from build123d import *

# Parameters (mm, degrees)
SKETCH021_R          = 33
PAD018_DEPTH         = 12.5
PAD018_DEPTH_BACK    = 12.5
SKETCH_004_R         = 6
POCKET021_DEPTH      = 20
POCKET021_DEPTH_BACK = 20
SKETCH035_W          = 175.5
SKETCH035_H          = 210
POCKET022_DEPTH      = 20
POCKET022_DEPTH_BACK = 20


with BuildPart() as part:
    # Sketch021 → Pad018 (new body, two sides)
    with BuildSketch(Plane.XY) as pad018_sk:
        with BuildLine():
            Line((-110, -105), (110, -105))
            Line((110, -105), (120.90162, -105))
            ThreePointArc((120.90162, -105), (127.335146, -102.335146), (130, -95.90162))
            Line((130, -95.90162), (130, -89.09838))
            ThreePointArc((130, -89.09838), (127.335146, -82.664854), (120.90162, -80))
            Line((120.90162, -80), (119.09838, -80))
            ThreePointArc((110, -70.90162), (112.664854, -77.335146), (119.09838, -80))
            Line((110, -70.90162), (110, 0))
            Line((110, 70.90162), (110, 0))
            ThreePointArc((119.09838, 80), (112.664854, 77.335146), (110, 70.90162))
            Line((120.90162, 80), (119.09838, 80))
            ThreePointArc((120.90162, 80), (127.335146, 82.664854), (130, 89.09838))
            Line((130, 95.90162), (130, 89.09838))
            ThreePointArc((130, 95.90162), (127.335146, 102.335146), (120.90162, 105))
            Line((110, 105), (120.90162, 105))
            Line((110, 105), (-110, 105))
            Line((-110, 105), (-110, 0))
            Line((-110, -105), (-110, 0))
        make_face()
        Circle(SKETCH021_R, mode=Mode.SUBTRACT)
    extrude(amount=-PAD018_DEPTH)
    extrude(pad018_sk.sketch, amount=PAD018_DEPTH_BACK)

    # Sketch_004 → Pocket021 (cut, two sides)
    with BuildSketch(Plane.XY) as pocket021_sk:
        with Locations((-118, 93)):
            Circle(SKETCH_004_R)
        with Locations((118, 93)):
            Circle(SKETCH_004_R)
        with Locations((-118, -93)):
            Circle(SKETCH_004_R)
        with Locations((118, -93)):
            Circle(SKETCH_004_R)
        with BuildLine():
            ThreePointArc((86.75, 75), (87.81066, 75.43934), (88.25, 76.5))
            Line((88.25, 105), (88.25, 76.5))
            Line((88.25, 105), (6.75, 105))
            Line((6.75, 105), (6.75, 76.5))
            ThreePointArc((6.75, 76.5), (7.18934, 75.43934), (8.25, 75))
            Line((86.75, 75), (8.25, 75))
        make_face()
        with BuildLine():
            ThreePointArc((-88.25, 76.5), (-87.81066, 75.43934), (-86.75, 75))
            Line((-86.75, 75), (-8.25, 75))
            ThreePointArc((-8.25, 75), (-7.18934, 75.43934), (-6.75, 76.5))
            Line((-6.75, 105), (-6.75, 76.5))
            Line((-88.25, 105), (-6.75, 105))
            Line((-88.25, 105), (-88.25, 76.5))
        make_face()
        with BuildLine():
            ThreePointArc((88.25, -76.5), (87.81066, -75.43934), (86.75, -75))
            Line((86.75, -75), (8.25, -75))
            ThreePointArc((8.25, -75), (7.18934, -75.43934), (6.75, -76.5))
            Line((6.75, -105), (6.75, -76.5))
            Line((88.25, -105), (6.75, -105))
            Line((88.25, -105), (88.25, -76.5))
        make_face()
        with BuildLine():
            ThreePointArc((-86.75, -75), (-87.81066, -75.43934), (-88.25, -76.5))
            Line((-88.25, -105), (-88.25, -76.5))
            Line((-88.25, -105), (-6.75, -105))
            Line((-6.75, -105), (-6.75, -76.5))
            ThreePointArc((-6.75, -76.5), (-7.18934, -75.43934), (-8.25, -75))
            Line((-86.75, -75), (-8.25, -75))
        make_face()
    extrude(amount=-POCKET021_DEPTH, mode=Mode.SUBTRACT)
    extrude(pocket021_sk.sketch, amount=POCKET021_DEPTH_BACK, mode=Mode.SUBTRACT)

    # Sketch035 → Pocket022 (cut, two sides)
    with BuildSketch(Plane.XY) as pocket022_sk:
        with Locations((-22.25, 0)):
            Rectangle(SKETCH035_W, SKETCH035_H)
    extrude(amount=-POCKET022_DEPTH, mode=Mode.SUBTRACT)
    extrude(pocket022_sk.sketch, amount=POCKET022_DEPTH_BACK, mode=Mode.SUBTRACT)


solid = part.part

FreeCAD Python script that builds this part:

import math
import FreeCAD as App
import Part
import Sketcher

doc = App.newDocument("Part")
params = doc.addObject("Spreadsheet::Sheet", "Params")
for row, (alias, value) in enumerate([
    ("sketch1_diameter", "66 mm"),
    ("sketch1_height", "210 mm"),
    ("pad1_length", "12.5 mm"),
    ("pad1_length2", "12.5 mm"),
    ("sketch2_diameter", "12 mm"),
    ("sketch2_radius", "1.500001 mm"),
    ("sketch2_width", "81.5 mm"),
    ("sketch2_height", "28.5 mm"),
    ("sketch3_height", "210 mm"),
    ("sketch3_width", "175.5 mm"),
], start=1):
    params.set(f"A{row}", alias)
    params.set(f"B{row}", "=" + value)
    params.setAlias(f"B{row}", alias)

body = doc.addObject("PartDesign::Body", "Body")

# Sketch on XY plane
sketch1 = body.newObject("Sketcher::SketchObject", "Sketch")
sketch1.AttachmentSupport = (doc.getObject("XY_Plane"), [""])
sketch1.MapMode = "FlatFace"
sketch1.addGeometry([
    Part.LineSegment(App.Vector(-110, -105, 0), App.Vector(120.90162, -105, 0)),  # 0
    Part.ArcOfCircle(Part.Circle(App.Vector(120.901619, -95.901619, 0), App.Vector(0, 0, 1), 9.098381), math.radians(-89.999996), math.radians(-0.000004)),  # 1
    Part.LineSegment(App.Vector(130, -95.90162, 0), App.Vector(130, -89.09838, 0)),  # 2
    Part.ArcOfCircle(Part.Circle(App.Vector(120.901619, -89.098381, 0), App.Vector(0, 0, 1), 9.098381), math.radians(0.000004), math.radians(89.999996)),  # 3
    Part.LineSegment(App.Vector(120.90162, -80, 0), App.Vector(119.09838, -80, 0)),  # 4
    Part.ArcOfCircle(Part.Circle(App.Vector(119.098381, -70.901619, 0), App.Vector(0, 0, 1), 9.098381), math.radians(-179.999996), math.radians(-90.000004)),  # 5
    Part.LineSegment(App.Vector(110, -70.90162, 0), App.Vector(110, 70.90162, 0)),  # 6
    Part.ArcOfCircle(Part.Circle(App.Vector(119.098381, 70.901619, 0), App.Vector(0, 0, 1), 9.098381), math.radians(90.000004), math.radians(179.999996)),  # 7
    Part.LineSegment(App.Vector(119.09838, 80, 0), App.Vector(120.90162, 80, 0)),  # 8
    Part.ArcOfCircle(Part.Circle(App.Vector(120.901619, 89.098381, 0), App.Vector(0, 0, 1), 9.098381), math.radians(-89.999996), math.radians(-0.000004)),  # 9
    Part.LineSegment(App.Vector(130, 89.09838, 0), App.Vector(130, 95.90162, 0)),  # 10
    Part.ArcOfCircle(Part.Circle(App.Vector(120.901619, 95.901619, 0), App.Vector(0, 0, 1), 9.098381), math.radians(0.000004), math.radians(89.999996)),  # 11
    Part.LineSegment(App.Vector(120.90162, 105, 0), App.Vector(-110, 105, 0)),  # 12
    Part.LineSegment(App.Vector(-110, 105, 0), App.Vector(-110, -105, 0)),  # 13
    Part.Circle(App.Vector(0, 0, 0), App.Vector(0, 0, 1), 33),  # 14
], False)
sketch1.addConstraint([
    Sketcher.Constraint("Tangent", 0, 2, 1, 1),
    Sketcher.Constraint("Tangent", 1, 2, 2, 1),
    Sketcher.Constraint("Tangent", 2, 2, 3, 1),
    Sketcher.Constraint("Tangent", 3, 2, 4, 1),
    Sketcher.Constraint("Tangent", 4, 2, 5, 2),
    Sketcher.Constraint("Tangent", 5, 1, 6, 1),
    Sketcher.Constraint("Tangent", 6, 2, 7, 2),
    Sketcher.Constraint("Tangent", 7, 1, 8, 1),
    Sketcher.Constraint("Tangent", 8, 2, 9, 1),
    Sketcher.Constraint("Tangent", 9, 2, 10, 1),
    Sketcher.Constraint("Tangent", 10, 2, 11, 1),
    Sketcher.Constraint("Tangent", 11, 2, 12, 1),
    Sketcher.Constraint("Coincident", 12, 2, 13, 1),
    Sketcher.Constraint("Coincident", 13, 2, 0, 1),
    Sketcher.Constraint("Horizontal", 0),
    Sketcher.Constraint("Vertical", 2),
    Sketcher.Constraint("Horizontal", 4),
    Sketcher.Constraint("Vertical", 6),
    Sketcher.Constraint("Horizontal", 8),
    Sketcher.Constraint("Vertical", 10),
    Sketcher.Constraint("Horizontal", 12),
    Sketcher.Constraint("Vertical", 13),
    Sketcher.Constraint("Coincident", 14, 3, -1, 1),
    Sketcher.Constraint("Equal", 1, 3),
    Sketcher.Constraint("Equal", 3, 5),
    Sketcher.Constraint("Equal", 5, 7),
    Sketcher.Constraint("Equal", 7, 9),
    Sketcher.Constraint("Equal", 9, 11),
    Sketcher.Constraint("Symmetric", 3, 3, 9, 3, -1),
    Sketcher.Constraint("Equal", 2, 10),
    Sketcher.Constraint("Diameter", 14, 66.0),
    Sketcher.Constraint("DistanceY", 13, 2, 13, 1, 210.0),
    Sketcher.Constraint("DistanceX", -1, 1, 1, 2, 130.0),
    Sketcher.Constraint("DistanceY", 3, 2, -1, 1, 80.0),
    Sketcher.Constraint("DistanceX", -1, 1, 5, 1, 110.0),
    Sketcher.Constraint("DistanceX", 12, 2, -1, 1, 110.0),
    Sketcher.Constraint("Radius", 1, 9.098381),
])
sketch1.setExpression("Constraints[30]", "Params.sketch1_diameter")
sketch1.setExpression("Constraints[31]", "Params.sketch1_height")
pad1 = body.newObject("PartDesign::Pad", "Pad")
pad1.Profile = sketch1
pad1.Type = "TwoLengths"
pad1.setExpression("Length", "Params.pad1_length")
pad1.setExpression("Length2", "Params.pad1_length2")
pad1.Reversed = True

# Sketch on XY plane
sketch2 = body.newObject("Sketcher::SketchObject", "Sketch001")
sketch2.AttachmentSupport = (doc.getObject("XY_Plane"), [""])
sketch2.MapMode = "FlatFace"
sketch2.addGeometry([
    Part.Circle(App.Vector(-118, 93, 0), App.Vector(0, 0, 1), 6),  # 0
    Part.Circle(App.Vector(118, 93, 0), App.Vector(0, 0, 1), 6),  # 1
    Part.Circle(App.Vector(-118, -93, 0), App.Vector(0, 0, 1), 6),  # 2
    Part.Circle(App.Vector(118, -93, 0), App.Vector(0, 0, 1), 6),  # 3
    Part.ArcOfCircle(Part.Circle(App.Vector(86.749999, 76.500001, 0), App.Vector(0, 0, 1), 1.500001), math.radians(-89.999978), math.radians(-0.000022)),  # 4
    Part.LineSegment(App.Vector(88.25, 76.5, 0), App.Vector(88.25, 105, 0)),  # 5
    Part.LineSegment(App.Vector(88.25, 105, 0), App.Vector(6.75, 105, 0)),  # 6
    Part.LineSegment(App.Vector(6.75, 105, 0), App.Vector(6.75, 76.5, 0)),  # 7
    Part.ArcOfCircle(Part.Circle(App.Vector(8.250001, 76.500001, 0), App.Vector(0, 0, 1), 1.500001), math.radians(-179.999978), math.radians(-90.000022)),  # 8
    Part.LineSegment(App.Vector(8.25, 75, 0), App.Vector(86.75, 75, 0)),  # 9
    Part.ArcOfCircle(Part.Circle(App.Vector(-86.749999, 76.500001, 0), App.Vector(0, 0, 1), 1.500001), math.radians(-179.999978), math.radians(-90.000022)),  # 10
    Part.LineSegment(App.Vector(-86.75, 75, 0), App.Vector(-8.25, 75, 0)),  # 11
    Part.ArcOfCircle(Part.Circle(App.Vector(-8.250001, 76.500001, 0), App.Vector(0, 0, 1), 1.500001), math.radians(-89.999978), math.radians(-0.000022)),  # 12
    Part.LineSegment(App.Vector(-6.75, 76.5, 0), App.Vector(-6.75, 105, 0)),  # 13
    Part.LineSegment(App.Vector(-6.75, 105, 0), App.Vector(-88.25, 105, 0)),  # 14
    Part.LineSegment(App.Vector(-88.25, 105, 0), App.Vector(-88.25, 76.5, 0)),  # 15
    Part.ArcOfCircle(Part.Circle(App.Vector(86.749999, -76.500001, 0), App.Vector(0, 0, 1), 1.500001), math.radians(0.000022), math.radians(89.999978)),  # 16
    Part.LineSegment(App.Vector(86.75, -75, 0), App.Vector(8.25, -75, 0)),  # 17
    Part.ArcOfCircle(Part.Circle(App.Vector(8.250001, -76.500001, 0), App.Vector(0, 0, 1), 1.500001), math.radians(90.000022), math.radians(179.999978)),  # 18
    Part.LineSegment(App.Vector(6.75, -76.5, 0), App.Vector(6.75, -105, 0)),  # 19
    Part.LineSegment(App.Vector(6.75, -105, 0), App.Vector(88.25, -105, 0)),  # 20
    Part.LineSegment(App.Vector(88.25, -105, 0), App.Vector(88.25, -76.5, 0)),  # 21
    Part.ArcOfCircle(Part.Circle(App.Vector(-86.749999, -76.500001, 0), App.Vector(0, 0, 1), 1.500001), math.radians(90.000022), math.radians(179.999978)),  # 22
    Part.LineSegment(App.Vector(-88.25, -76.5, 0), App.Vector(-88.25, -105, 0)),  # 23
    Part.LineSegment(App.Vector(-88.25, -105, 0), App.Vector(-6.75, -105, 0)),  # 24
    Part.LineSegment(App.Vector(-6.75, -105, 0), App.Vector(-6.75, -76.5, 0)),  # 25
    Part.ArcOfCircle(Part.Circle(App.Vector(-8.250001, -76.500001, 0), App.Vector(0, 0, 1), 1.500001), math.radians(0.000022), math.radians(89.999978)),  # 26
    Part.LineSegment(App.Vector(-8.25, -75, 0), App.Vector(-86.75, -75, 0)),  # 27
], False)
sketch2.addConstraint([
    Sketcher.Constraint("Tangent", 4, 2, 5, 1),
    Sketcher.Constraint("Coincident", 5, 2, 6, 1),
    Sketcher.Constraint("Coincident", 6, 2, 7, 1),
    Sketcher.Constraint("Tangent", 7, 2, 8, 1),
    Sketcher.Constraint("Tangent", 8, 2, 9, 1),
    Sketcher.Constraint("Tangent", 9, 2, 4, 1),
    Sketcher.Constraint("Tangent", 10, 2, 11, 1),
    Sketcher.Constraint("Tangent", 11, 2, 12, 1),
    Sketcher.Constraint("Tangent", 12, 2, 13, 1),
    Sketcher.Constraint("Coincident", 13, 2, 14, 1),
    Sketcher.Constraint("Coincident", 14, 2, 15, 1),
    Sketcher.Constraint("Tangent", 15, 2, 10, 1),
    Sketcher.Constraint("Tangent", 16, 2, 17, 1),
    Sketcher.Constraint("Tangent", 17, 2, 18, 1),
    Sketcher.Constraint("Tangent", 18, 2, 19, 1),
    Sketcher.Constraint("Coincident", 19, 2, 20, 1),
    Sketcher.Constraint("Coincident", 20, 2, 21, 1),
    Sketcher.Constraint("Tangent", 21, 2, 16, 1),
    Sketcher.Constraint("Tangent", 22, 2, 23, 1),
    Sketcher.Constraint("Coincident", 23, 2, 24, 1),
    Sketcher.Constraint("Coincident", 24, 2, 25, 1),
    Sketcher.Constraint("Tangent", 25, 2, 26, 1),
    Sketcher.Constraint("Tangent", 26, 2, 27, 1),
    Sketcher.Constraint("Tangent", 27, 2, 22, 1),
    Sketcher.Constraint("Vertical", 5),
    Sketcher.Constraint("Horizontal", 6),
    Sketcher.Constraint("Vertical", 7),
    Sketcher.Constraint("Horizontal", 9),
    Sketcher.Constraint("Horizontal", 11),
    Sketcher.Constraint("Vertical", 13),
    Sketcher.Constraint("Horizontal", 14),
    Sketcher.Constraint("Vertical", 15),
    Sketcher.Constraint("Horizontal", 17),
    Sketcher.Constraint("Vertical", 19),
    Sketcher.Constraint("Horizontal", 20),
    Sketcher.Constraint("Vertical", 21),
    Sketcher.Constraint("Vertical", 23),
    Sketcher.Constraint("Horizontal", 24),
    Sketcher.Constraint("Vertical", 25),
    Sketcher.Constraint("Horizontal", 27),
    Sketcher.Constraint("Equal", 0, 1),
    Sketcher.Constraint("Equal", 1, 2),
    Sketcher.Constraint("Equal", 2, 3),
    Sketcher.Constraint("Equal", 4, 8),
    Sketcher.Constraint("Equal", 8, 10),
    Sketcher.Constraint("Equal", 10, 12),
    Sketcher.Constraint("Equal", 12, 16),
    Sketcher.Constraint("Equal", 16, 18),
    Sketcher.Constraint("Equal", 18, 22),
    Sketcher.Constraint("Equal", 22, 26),
    Sketcher.Constraint("Symmetric", 1, 3, 2, 3, -1, 1),
    Sketcher.Constraint("Symmetric", 0, 3, 3, 3, -1, 1),
    Sketcher.Constraint("Symmetric", 10, 3, 16, 3, -1, 1),
    Sketcher.Constraint("Symmetric", 4, 3, 22, 3, -1, 1),
    Sketcher.Constraint("Symmetric", 13, 2, 19, 2, -1, 1),
    Sketcher.Constraint("Symmetric", 6, 2, 24, 2, -1, 1),
    Sketcher.Constraint("Symmetric", 0, 3, 1, 3, -2),
    Sketcher.Constraint("Symmetric", 4, 3, 10, 3, -2),
    Sketcher.Constraint("Symmetric", 6, 2, 13, 2, -2),
    Sketcher.Constraint("Diameter", 0, 12.0),
    Sketcher.Constraint("Radius", 4, 1.500001),
    Sketcher.Constraint("DistanceX", 6, 2, 6, 1, 81.5),
    Sketcher.Constraint("DistanceY", 5, 1, 5, 2, 28.5),
    Sketcher.Constraint("DistanceX", 0, 3, -1, 1, 118.0),
    Sketcher.Constraint("DistanceY", -1, 1, 0, 3, 93.0),
    Sketcher.Constraint("DistanceY", -1, 1, 5, 2, 105.0),
    Sketcher.Constraint("DistanceX", 10, 3, 8, 3, 95.0),
])
sketch2.setExpression("Constraints[59]", "Params.sketch2_diameter")
sketch2.setExpression("Constraints[60]", "Params.sketch2_radius")
sketch2.setExpression("Constraints[61]", "Params.sketch2_width")
sketch2.setExpression("Constraints[62]", "Params.sketch2_height")
pocket1 = body.newObject("PartDesign::Pocket", "Pocket")
pocket1.Profile = sketch2
pocket1.Type = "ThroughAll"
pocket1.Midplane = True

# Sketch on XY plane
sketch3 = body.newObject("Sketcher::SketchObject", "Sketch002")
sketch3.AttachmentSupport = (doc.getObject("XY_Plane"), [""])
sketch3.MapMode = "FlatFace"
sketch3.addGeometry([
    Part.LineSegment(App.Vector(-110, 105, 0), App.Vector(-110, -105, 0)),
    Part.LineSegment(App.Vector(-110, -105, 0), App.Vector(65.5, -105, 0)),
    Part.LineSegment(App.Vector(65.5, -105, 0), App.Vector(65.5, 105, 0)),
    Part.LineSegment(App.Vector(65.5, 105, 0), App.Vector(-110, 105, 0)),
], False)
sketch3.addConstraint([
    Sketcher.Constraint("Coincident", 0, 2, 1, 1),
    Sketcher.Constraint("Coincident", 1, 2, 2, 1),
    Sketcher.Constraint("Coincident", 2, 2, 3, 1),
    Sketcher.Constraint("Coincident", 3, 2, 0, 1),
    Sketcher.Constraint("Vertical", 0),
    Sketcher.Constraint("Horizontal", 1),
    Sketcher.Constraint("Vertical", 2),
    Sketcher.Constraint("Horizontal", 3),
    Sketcher.Constraint("DistanceY", 0, 2, 0, 1, 210.0),
    Sketcher.Constraint("DistanceX", 1, 1, 1, 2, 175.5),
    Sketcher.Constraint("DistanceX", 0, 2, -1, 1, 110.0),
    Sketcher.Constraint("DistanceY", 0, 2, -1, 1, 105.0),
])
sketch3.setExpression("Constraints[8]", "Params.sketch3_height")
sketch3.setExpression("Constraints[9]", "Params.sketch3_width")
pocket2 = body.newObject("PartDesign::Pocket", "Pocket001")
pocket2.Profile = sketch3
pocket2.Type = "ThroughAll"
pocket2.Midplane = True

doc.recompute()
